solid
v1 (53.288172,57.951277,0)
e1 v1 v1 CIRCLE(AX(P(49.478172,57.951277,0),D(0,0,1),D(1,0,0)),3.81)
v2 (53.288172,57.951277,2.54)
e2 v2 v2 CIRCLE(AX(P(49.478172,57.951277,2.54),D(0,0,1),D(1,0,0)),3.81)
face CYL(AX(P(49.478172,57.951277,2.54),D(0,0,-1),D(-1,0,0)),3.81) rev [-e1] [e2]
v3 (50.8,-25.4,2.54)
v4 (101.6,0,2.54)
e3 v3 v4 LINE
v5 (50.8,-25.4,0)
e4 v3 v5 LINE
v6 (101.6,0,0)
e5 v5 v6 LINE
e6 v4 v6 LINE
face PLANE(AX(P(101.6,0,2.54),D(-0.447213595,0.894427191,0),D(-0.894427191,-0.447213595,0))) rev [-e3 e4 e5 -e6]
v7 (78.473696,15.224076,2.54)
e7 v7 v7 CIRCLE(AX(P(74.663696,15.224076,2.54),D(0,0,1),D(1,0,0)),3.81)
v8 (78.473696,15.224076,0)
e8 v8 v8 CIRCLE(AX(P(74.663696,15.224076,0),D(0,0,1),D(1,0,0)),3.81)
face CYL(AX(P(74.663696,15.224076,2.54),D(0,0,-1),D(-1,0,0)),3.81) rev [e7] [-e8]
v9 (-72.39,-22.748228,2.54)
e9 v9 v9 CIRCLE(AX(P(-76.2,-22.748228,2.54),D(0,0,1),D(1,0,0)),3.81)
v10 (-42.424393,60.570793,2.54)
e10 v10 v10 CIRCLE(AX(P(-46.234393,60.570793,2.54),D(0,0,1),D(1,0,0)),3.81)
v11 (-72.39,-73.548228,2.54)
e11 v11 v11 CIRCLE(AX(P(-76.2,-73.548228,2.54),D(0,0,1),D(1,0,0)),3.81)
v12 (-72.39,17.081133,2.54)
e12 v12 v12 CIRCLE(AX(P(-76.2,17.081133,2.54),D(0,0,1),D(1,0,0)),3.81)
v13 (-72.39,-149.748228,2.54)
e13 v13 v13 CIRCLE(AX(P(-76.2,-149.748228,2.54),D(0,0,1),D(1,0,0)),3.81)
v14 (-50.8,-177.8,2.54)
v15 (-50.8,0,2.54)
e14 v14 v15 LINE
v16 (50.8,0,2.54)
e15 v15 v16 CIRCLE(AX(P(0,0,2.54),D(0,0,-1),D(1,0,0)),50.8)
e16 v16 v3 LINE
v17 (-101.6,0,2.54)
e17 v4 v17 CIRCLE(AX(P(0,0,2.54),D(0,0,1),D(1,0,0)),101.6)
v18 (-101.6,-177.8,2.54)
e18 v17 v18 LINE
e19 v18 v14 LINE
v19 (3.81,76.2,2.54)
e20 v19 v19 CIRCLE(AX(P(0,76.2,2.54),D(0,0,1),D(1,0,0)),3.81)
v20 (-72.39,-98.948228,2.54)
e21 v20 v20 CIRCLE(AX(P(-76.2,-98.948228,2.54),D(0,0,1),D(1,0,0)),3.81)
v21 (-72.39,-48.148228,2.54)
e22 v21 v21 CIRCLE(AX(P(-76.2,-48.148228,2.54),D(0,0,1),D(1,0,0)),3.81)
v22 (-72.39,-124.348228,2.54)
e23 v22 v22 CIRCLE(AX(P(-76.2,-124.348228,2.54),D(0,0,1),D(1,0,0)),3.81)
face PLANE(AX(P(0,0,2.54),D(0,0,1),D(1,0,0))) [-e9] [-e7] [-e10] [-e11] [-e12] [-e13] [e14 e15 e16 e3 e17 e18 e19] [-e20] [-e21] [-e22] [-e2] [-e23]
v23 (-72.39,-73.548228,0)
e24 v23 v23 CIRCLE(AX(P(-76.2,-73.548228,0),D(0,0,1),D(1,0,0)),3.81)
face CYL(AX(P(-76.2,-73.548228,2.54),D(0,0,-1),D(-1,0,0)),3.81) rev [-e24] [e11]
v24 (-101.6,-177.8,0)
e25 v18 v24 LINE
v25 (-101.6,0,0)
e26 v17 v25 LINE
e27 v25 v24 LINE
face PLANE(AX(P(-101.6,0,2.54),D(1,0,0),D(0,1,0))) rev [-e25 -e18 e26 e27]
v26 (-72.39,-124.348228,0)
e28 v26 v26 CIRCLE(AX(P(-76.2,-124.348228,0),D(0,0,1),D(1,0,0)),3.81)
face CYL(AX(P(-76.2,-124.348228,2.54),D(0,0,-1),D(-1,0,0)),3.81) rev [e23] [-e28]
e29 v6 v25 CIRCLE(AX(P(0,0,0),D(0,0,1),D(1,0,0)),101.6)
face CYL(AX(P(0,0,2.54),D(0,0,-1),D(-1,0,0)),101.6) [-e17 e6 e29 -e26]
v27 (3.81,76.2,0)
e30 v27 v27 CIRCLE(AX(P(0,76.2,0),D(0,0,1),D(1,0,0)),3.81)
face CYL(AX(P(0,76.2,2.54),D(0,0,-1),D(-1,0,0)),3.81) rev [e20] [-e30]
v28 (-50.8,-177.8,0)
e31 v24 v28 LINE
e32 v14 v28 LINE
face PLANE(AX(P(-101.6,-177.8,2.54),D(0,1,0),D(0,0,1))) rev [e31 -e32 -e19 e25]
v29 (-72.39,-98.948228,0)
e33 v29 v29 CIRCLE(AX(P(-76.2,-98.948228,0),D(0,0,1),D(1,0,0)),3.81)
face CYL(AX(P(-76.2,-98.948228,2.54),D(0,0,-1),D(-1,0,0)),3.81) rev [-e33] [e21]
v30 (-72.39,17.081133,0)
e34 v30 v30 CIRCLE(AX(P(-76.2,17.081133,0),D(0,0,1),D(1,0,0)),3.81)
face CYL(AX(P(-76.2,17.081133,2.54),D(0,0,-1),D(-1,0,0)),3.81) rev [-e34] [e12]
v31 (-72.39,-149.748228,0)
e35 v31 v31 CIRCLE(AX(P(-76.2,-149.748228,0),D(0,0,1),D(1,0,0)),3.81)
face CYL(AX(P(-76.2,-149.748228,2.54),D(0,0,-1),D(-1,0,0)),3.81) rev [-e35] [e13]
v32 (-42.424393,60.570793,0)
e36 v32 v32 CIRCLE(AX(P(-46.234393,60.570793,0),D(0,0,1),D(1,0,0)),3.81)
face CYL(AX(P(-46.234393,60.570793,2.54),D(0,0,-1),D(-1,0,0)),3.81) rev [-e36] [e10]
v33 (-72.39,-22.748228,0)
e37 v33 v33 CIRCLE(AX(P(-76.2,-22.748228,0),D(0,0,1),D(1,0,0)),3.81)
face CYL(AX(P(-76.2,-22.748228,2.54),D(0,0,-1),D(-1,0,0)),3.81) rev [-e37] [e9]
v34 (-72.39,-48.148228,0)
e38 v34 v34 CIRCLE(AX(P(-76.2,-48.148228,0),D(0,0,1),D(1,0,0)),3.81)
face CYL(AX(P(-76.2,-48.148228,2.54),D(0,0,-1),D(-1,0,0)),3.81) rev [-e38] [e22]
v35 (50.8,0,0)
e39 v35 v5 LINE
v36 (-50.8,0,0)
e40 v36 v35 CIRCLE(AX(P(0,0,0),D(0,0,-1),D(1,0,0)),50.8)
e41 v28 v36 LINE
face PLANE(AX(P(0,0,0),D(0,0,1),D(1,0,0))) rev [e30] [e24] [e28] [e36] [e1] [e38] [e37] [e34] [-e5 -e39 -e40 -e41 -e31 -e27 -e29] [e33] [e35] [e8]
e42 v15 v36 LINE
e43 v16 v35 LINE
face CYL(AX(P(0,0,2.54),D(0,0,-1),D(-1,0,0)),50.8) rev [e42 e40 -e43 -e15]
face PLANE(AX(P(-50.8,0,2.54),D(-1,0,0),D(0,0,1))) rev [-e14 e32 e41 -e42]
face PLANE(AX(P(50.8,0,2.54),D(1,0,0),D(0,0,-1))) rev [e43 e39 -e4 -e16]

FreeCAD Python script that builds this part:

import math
import FreeCAD as App
import Part
import Sketcher
Q = App.Units.Quantity

doc = App.newDocument("Part")
body = doc.addObject("PartDesign::Body", "Body")

# Sketch on XY plane
sketch1 = doc.addObject("Sketcher::SketchObject", "Sketch")
body.addObject(sketch1)
sketch1.AttachmentSupport = (doc.XY_Plane, [""])
sketch1.MapMode = "FlatFace"
sketch1.addGeometry([
    Part.LineSegment(App.Vector(-101.6, 0, 0), App.Vector(-101.6, -177.8, 0)),  # 0
    Part.LineSegment(App.Vector(-101.6, -177.8, 0), App.Vector(-50.8, -177.8, 0)),  # 1
    Part.LineSegment(App.Vector(-50.8, -177.8, 0), App.Vector(-50.8, 0, 0)),  # 2
    Part.ArcOfCircle(Part.Circle(App.Vector(0, 0, 0), App.Vector(0, 0, 1), 50.8), math.radians(0), math.radians(180)),  # 3
    Part.LineSegment(App.Vector(50.8, 0, 0), App.Vector(50.8, -25.4, 0)),  # 4
    Part.LineSegment(App.Vector(50.8, -25.4, 0), App.Vector(101.6, 0, 0)),  # 5
    Part.ArcOfCircle(Part.Circle(App.Vector(0, 0, 0), App.Vector(0, 0, 1), 101.6), math.radians(0), math.radians(180)),  # 6
    Part.Circle(App.Vector(-76.2, -149.7, 0), App.Vector(0, 0, 1), 3.8),  # 7
    Part.Circle(App.Vector(-76.2, -124.3, 0), App.Vector(0, 0, 1), 3.8),  # 8
    Part.Circle(App.Vector(-76.2, -98.9, 0), App.Vector(0, 0, 1), 3.8),  # 9
    Part.Circle(App.Vector(-76.2, -73.5, 0), App.Vector(0, 0, 1), 3.8),  # 10
    Part.Circle(App.Vector(-76.2, -48.1, 0), App.Vector(0, 0, 1), 3.8),  # 11
    Part.Circle(App.Vector(-76.2, -22.7, 0), App.Vector(0, 0, 1), 3.8),  # 12
    Part.Circle(App.Vector(-76.2, 17.1, 0), App.Vector(0, 0, 1), 3.8),  # 13
    Part.Circle(App.Vector(-46.2, 60.6, 0), App.Vector(0, 0, 1), 3.8),  # 14
    Part.Circle(App.Vector(74.7, 15.2, 0), App.Vector(0, 0, 1), 3.8),  # 15
    Part.Circle(App.Vector(0, 76.2, 0), App.Vector(0, 0, 1), 3.8),  # 16
    Part.Circle(App.Vector(49.5, 58, 0), App.Vector(0, 0, 1), 3.8),  # 17
], False)
sketch1.addConstraint([
    Sketcher.Constraint("Coincident", 0, 2, 1, 1),
    Sketcher.Constraint("Coincident", 1, 2, 2, 1),
    Sketcher.Constraint("Tangent", 2, 2, 3, 2),
    Sketcher.Constraint("Tangent", 3, 1, 4, 1),
    Sketcher.Constraint("Coincident", 4, 2, 5, 1),
    Sketcher.Constraint("Coincident", 5, 2, 6, 1),
    Sketcher.Constraint("Tangent", 6, 2, 0, 1),
    Sketcher.Constraint("Vertical", 0),
    Sketcher.Constraint("Horizontal", 1),
    Sketcher.Constraint("Vertical", 2),
    Sketcher.Constraint("Vertical", 4),
    Sketcher.Constraint("Coincident", 3, 3, -1, 1),
    Sketcher.Constraint("Coincident", 6, 3, -1, 1),
    Sketcher.Constraint("Equal", 7, 8),
    Sketcher.Constraint("Equal", 8, 9),
    Sketcher.Constraint("Equal", 9, 10),
    Sketcher.Constraint("Equal", 10, 11),
    Sketcher.Constraint("Equal", 11, 12),
    Sketcher.Constraint("Equal", 12, 13),
    Sketcher.Constraint("Equal", 13, 14),
    Sketcher.Constraint("Equal", 14, 15),
    Sketcher.Constraint("Equal", 15, 16),
    Sketcher.Constraint("Equal", 16, 17),
    Sketcher.Constraint("PointOnObject", 16, 3, -2),
    Sketcher.Constraint("PointOnObject", 5, 2, -1),
    Sketcher.Constraint("Vertical", 7, 3, 8, 3),
    Sketcher.Constraint("Vertical", 8, 3, 9, 3),
    Sketcher.Constraint("Vertical", 9, 3, 10, 3),
    Sketcher.Constraint("Vertical", 10, 3, 11, 3),
    Sketcher.Constraint("Vertical", 11, 3, 12, 3),
    Sketcher.Constraint("Vertical", 12, 3, 13, 3),
    Sketcher.Constraint("Radius", 3, Q("2 in")),
    Sketcher.Constraint("Radius", 6, Q("4 in")),
    Sketcher.Constraint("Diameter", 7, Q("0.3 in")),
    Sketcher.Constraint("DistanceY", 0, 2, 0, 1, Q("7 in")),
    Sketcher.Constraint("DistanceY", 4, 2, 4, 1, Q("1 in")),
    Sketcher.Constraint("DistanceX", 7, 3, -1, 1, Q("3 in")),
    Sketcher.Constraint("DistanceY", -1, 1, 16, 3, Q("3 in")),
    Sketcher.Constraint("DistanceY", 7, 3, 8, 3, Q("1 in")),
    Sketcher.Constraint("DistanceY", 8, 3, 9, 3, Q("1 in")),
    Sketcher.Constraint("DistanceY", 9, 3, 10, 3, Q("1 in")),
    Sketcher.Constraint("DistanceY", 10, 3, 11, 3, Q("1 in")),
    Sketcher.Constraint("DistanceY", 11, 3, 12, 3, Q("1 in")),
    Sketcher.Constraint("DistanceY", 15, 3, 17, 3, Q("42.727201 mm")),
    Sketcher.Constraint("DistanceY", 7, 3, -1, 1, Q("149.748228 mm")),
    Sketcher.Constraint("DistanceY", 12, 3, 13, 3, Q("39.829361 mm")),
    Sketcher.Constraint("DistanceY", 13, 3, 14, 3, Q("43.48966 mm")),
    Sketcher.Constraint("DistanceX", 14, 3, 15, 3, Q("120.898089 mm")),
    Sketcher.Constraint("DistanceX", 14, 3, -1, 1, Q("46.234393 mm")),
    Sketcher.Constraint("DistanceY", -1, 1, 15, 3, Q("15.224076 mm")),
    Sketcher.Constraint("DistanceX", -1, 1, 17, 3, Q("49.478172 mm")),
])
pad1 = doc.addObject("PartDesign::Pad", "Pad")
body.addObject(pad1)
pad1.Profile = sketch1
pad1.Length = Q("0.1 in")

doc.recompute()
